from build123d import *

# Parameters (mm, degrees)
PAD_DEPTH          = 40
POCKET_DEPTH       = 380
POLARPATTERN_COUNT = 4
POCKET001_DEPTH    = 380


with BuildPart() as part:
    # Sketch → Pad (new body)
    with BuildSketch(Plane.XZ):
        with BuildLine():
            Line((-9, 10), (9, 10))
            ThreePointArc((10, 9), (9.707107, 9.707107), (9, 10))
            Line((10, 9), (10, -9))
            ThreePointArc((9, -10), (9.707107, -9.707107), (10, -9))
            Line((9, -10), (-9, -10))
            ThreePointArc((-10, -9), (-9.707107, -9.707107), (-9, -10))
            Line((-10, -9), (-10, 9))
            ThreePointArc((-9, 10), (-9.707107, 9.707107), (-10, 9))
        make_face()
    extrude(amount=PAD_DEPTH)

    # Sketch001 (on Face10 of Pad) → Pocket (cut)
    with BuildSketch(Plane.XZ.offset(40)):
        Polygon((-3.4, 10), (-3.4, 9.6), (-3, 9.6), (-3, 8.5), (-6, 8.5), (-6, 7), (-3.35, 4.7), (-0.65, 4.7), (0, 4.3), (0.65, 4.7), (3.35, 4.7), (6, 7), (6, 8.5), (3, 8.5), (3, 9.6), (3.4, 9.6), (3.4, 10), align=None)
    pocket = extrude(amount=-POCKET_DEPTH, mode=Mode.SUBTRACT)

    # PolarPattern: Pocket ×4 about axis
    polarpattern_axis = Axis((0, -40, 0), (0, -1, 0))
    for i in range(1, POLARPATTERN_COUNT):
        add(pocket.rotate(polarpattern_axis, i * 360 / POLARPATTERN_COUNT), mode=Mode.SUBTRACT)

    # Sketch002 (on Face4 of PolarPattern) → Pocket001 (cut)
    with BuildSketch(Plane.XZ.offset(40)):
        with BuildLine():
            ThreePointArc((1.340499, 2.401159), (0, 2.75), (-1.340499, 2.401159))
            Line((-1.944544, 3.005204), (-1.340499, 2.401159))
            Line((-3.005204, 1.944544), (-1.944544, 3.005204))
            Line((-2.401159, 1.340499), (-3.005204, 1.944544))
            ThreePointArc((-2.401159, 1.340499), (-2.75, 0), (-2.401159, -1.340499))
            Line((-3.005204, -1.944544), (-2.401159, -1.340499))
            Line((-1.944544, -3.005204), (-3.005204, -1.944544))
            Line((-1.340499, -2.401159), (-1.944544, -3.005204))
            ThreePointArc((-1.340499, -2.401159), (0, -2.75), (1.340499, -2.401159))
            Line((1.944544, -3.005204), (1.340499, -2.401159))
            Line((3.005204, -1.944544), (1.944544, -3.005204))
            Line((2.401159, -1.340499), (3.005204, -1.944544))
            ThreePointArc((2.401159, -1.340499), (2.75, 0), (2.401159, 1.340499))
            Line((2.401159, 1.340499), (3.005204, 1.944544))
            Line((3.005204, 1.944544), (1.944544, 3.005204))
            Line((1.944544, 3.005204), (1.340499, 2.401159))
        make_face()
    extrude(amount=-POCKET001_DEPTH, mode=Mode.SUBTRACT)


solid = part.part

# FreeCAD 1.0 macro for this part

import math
import FreeCAD as App
import Part
import Sketcher

V = App.Vector


def add_polygon(sketch, points):
    """Adds a closed chain of lines whose ends are joined by coincident constraints."""
    first, n = sketch.GeometryCount, len(points)
    for a, b in zip(points, points[1:] + points[:1]):
        sketch.addGeometry(Part.LineSegment(App.Vector(*a, 0), App.Vector(*b, 0)), False)
    for i in range(n):
        sketch.addConstraint(Sketcher.Constraint("Coincident", first + i, 2, first + (i + 1) % n, 1))

doc = App.newDocument("Part")
params = doc.addObject("Spreadsheet::Sheet", "Params")
for row, (alias, value) in enumerate([
    ("sketch1_radius", "0.999999 mm"),
    ("sketch1_width", "18 mm"),
    ("pad1_length", "40 mm"),
    ("sketch2_width", "3 mm"),
    ("sketch2_width2", "0.4 mm"),
    ("sketch2_width3", "2.7 mm"),
    ("sketch2_width4", "6.8 mm"),
    ("sketch2_height", "1.1 mm"),
    ("pocket1_length", "380 mm"),
    ("sketch3_length", "1.5 mm"),
    ("pocket2_length", "380 mm"),
], start=1):
    params.set(f"A{row}", alias)
    params.set(f"B{row}", "=" + value)
    params.setAlias(f"B{row}", alias)

body = doc.addObject("PartDesign::Body", "Body")

sketch1 = body.newObject("Sketcher::SketchObject", "Sketch")
sketch1.AttachmentSupport = (doc.getObject("XZ_Plane"), [""])
sketch1.MapMode = "FlatFace"
sketch1.addGeometry(Part.LineSegment(V(9, 10, 0), V(-9, 10, 0)), False)
sketch1.addGeometry(Part.ArcOfCircle(Part.Circle(V(-9, 9, 0), V(0, 0, 1), 1), math.radians(90), math.radians(180)), False)
sketch1.addGeometry(Part.LineSegment(V(-10, 9, 0), V(-10, -9, 0)), False)
sketch1.addGeometry(Part.ArcOfCircle(Part.Circle(V(-9, -9, 0), V(0, 0, 1), 1), math.radians(180), math.radians(270)), False)
sketch1.addGeometry(Part.LineSegment(V(-9, -10, 0), V(9, -10, 0)), False)
sketch1.addGeometry(Part.ArcOfCircle(Part.Circle(V(9, -9, 0), V(0, 0, 1), 1), math.radians(-90), math.radians(0)), False)
sketch1.addGeometry(Part.LineSegment(V(10, -9, 0), V(10, 9, 0)), False)
sketch1.addGeometry(Part.ArcOfCircle(Part.Circle(V(9, 9, 0), V(0, 0, 1), 1), math.radians(0), math.radians(90)), False)
sketch1.addConstraint(Sketcher.Constraint("Tangent", 0, 2, 1, 1))
sketch1.addConstraint(Sketcher.Constraint("Tangent", 1, 2, 2, 1))
sketch1.addConstraint(Sketcher.Constraint("Tangent", 2, 2, 3, 1))
sketch1.addConstraint(Sketcher.Constraint("Tangent", 3, 2, 4, 1))
sketch1.addConstraint(Sketcher.Constraint("Tangent", 4, 2, 5, 1))
sketch1.addConstraint(Sketcher.Constraint("Tangent", 5, 2, 6, 1))
sketch1.addConstraint(Sketcher.Constraint("Tangent", 6, 2, 7, 1))
sketch1.addConstraint(Sketcher.Constraint("Tangent", 7, 2, 0, 1))
sketch1.addConstraint(Sketcher.Constraint("Horizontal", 0))
sketch1.addConstraint(Sketcher.Constraint("Vertical", 2))
sketch1.addConstraint(Sketcher.Constraint("Horizontal", 4))
sketch1.addConstraint(Sketcher.Constraint("Vertical", 6))
sketch1.addConstraint(Sketcher.Constraint("Equal", 1, 3))
sketch1.addConstraint(Sketcher.Constraint("Equal", 3, 5))
sketch1.addConstraint(Sketcher.Constraint("Equal", 5, 7))
sketch1.addConstraint(Sketcher.Constraint("Symmetric", 1, 3, 5, 3, -1, 1))
sketch1.addConstraint(Sketcher.Constraint("Equal", 4, 2))
sketch1.addConstraint(Sketcher.Constraint("Radius", 1, 0.999999))
sketch1.addConstraint(Sketcher.Constraint("DistanceX", 0, 2, 0, 1, 18.0))
sketch1.setExpression("Constraints[17]", "Params.sketch1_radius")
sketch1.setExpression("Constraints[18]", "Params.sketch1_width")
pad1 = body.newObject("PartDesign::Pad", "Pad")
pad1.Profile = sketch1
pad1.setExpression("Length", "Params.pad1_length")

sketch2 = body.newObject("Sketcher::SketchObject", "Sketch001")
sketch2.AttachmentSupport = (doc.getObject("XZ_Plane"), [""])
sketch2.MapMode = "FlatFace"
sketch2.AttachmentOffset = App.Placement(V(0, 0, 40), App.Rotation())
add_polygon(sketch2, [(-3.4, 10), (-3.4, 9.6), (-3, 9.6), (-3, 8.5), (-6, 8.5), (-6, 7), (-3.35, 4.7), (-0.65, 4.7), (0, 4.3), (0.65, 4.7), (3.35, 4.7), (6, 7), (6, 8.5), (3, 8.5), (3, 9.6), (3.4, 9.6), (3.4, 10)])
sketch2.addConstraint(Sketcher.Constraint("Vertical", 0))
sketch2.addConstraint(Sketcher.Constraint("Horizontal", 1))
sketch2.addConstraint(Sketcher.Constraint("Vertical", 2))
sketch2.addConstraint(Sketcher.Constraint("Horizontal", 3))
sketch2.addConstraint(Sketcher.Constraint("Vertical", 4))
sketch2.addConstraint(Sketcher.Constraint("Horizontal", 6))
sketch2.addConstraint(Sketcher.Constraint("Horizontal", 9))
sketch2.addConstraint(Sketcher.Constraint("Vertical", 11))
sketch2.addConstraint(Sketcher.Constraint("Horizontal", 12))
sketch2.addConstraint(Sketcher.Constraint("Vertical", 13))
sketch2.addConstraint(Sketcher.Constraint("Horizontal", 14))
sketch2.addConstraint(Sketcher.Constraint("Vertical", 15))
sketch2.addConstraint(Sketcher.Constraint("Horizontal", 16))
sketch2.addConstraint(Sketcher.Constraint("Symmetric", 6, 2, 8, 2, -2))
sketch2.addConstraint(Sketcher.Constraint("Symmetric", 4, 2, 10, 2, -2))
sketch2.addConstraint(Sketcher.Constraint("Symmetric", 2, 2, 12, 2, -2))
sketch2.addConstraint(Sketcher.Constraint("Symmetric", 0, 2, 14, 2, -2))
sketch2.addConstraint(Sketcher.Constraint("PointOnObject", 7, 2, -2))
sketch2.addConstraint(Sketcher.Constraint("Equal", 6, 9))
sketch2.addConstraint(Sketcher.Constraint("Equal", 14, 0))
sketch2.addConstraint(Sketcher.Constraint("DistanceX", 3, 2, 3, 1, 3.0))
sketch2.addConstraint(Sketcher.Constraint("DistanceX", 1, 1, 1, 2, 0.4))
sketch2.addConstraint(Sketcher.Constraint("DistanceX", 6, 1, 6, 2, 2.7))
sketch2.addConstraint(Sketcher.Constraint("DistanceX", 16, 2, 16, 1, 6.8))
sketch2.addConstraint(Sketcher.Constraint("DistanceY", 2, 2, 2, 1, 1.1))
sketch2.addConstraint(Sketcher.Constraint("DistanceY", 4, 2, 4, 1, 1.5))
sketch2.addConstraint(Sketcher.Constraint("DistanceY", -1, 1, 4, 2, 7.0))
sketch2.addConstraint(Sketcher.Constraint("DistanceX", 5, 2, 8, 2, 4.0))
sketch2.addConstraint(Sketcher.Constraint("DistanceY", -1, 1, 5, 2, 4.7))
sketch2.addConstraint(Sketcher.Constraint("DistanceY", -1, 1, 7, 2, 4.3))
sketch2.setExpression("Constraints[37]", "Params.sketch2_width")
sketch2.setExpression("Constraints[38]", "Params.sketch2_width2")
sketch2.setExpression("Constraints[39]", "Params.sketch2_width3")
sketch2.setExpression("Constraints[40]", "Params.sketch2_width4")
sketch2.setExpression("Constraints[41]", "Params.sketch2_height")
pocket1 = body.newObject("PartDesign::Pocket", "Pocket")
pocket1.Profile = sketch2
pocket1.setExpression("Length", "Params.pocket1_length")
doc.recompute()

polarpattern = body.newObject("PartDesign::PolarPattern", "PolarPattern")
polarpattern.Originals = [pocket1]
polarpattern.Axis = (doc.getObject("Y_Axis"), [""])
polarpattern.Angle = 360
polarpattern.Occurrences = 4
body.Tip = polarpattern

sketch3 = body.newObject("Sketcher::SketchObject", "Sketch002")
sketch3.AttachmentSupport = (doc.getObject("XZ_Plane"), [""])
sketch3.MapMode = "FlatFace"
sketch3.AttachmentOffset = App.Placement(V(0, 0, 40), App.Rotation())
sketch3.addGeometry(Part.ArcOfCircle(Part.Circle(V(0, 0, 0), V(0, 0, 1), 2.8), math.radians(61), math.radians(119)), False)
sketch3.addGeometry(Part.LineSegment(V(-1.3, 2.4, 0), V(-1.9, 3, 0)), False)
sketch3.addGeometry(Part.LineSegment(V(-1.9, 3, 0), V(-3, 1.9, 0)), False)
sketch3.addGeometry(Part.LineSegment(V(-3, 1.9, 0), V(-2.4, 1.3, 0)), False)
sketch3.addGeometry(Part.ArcOfCircle(Part.Circle(V(0, 0, 0), V(0, 0, 1), 2.8), math.radians(151), math.radians(209)), False)
sketch3.addGeometry(Part.LineSegment(V(-2.4, -1.3, 0), V(-3, -1.9, 0)), False)
sketch3.addGeometry(Part.LineSegment(V(-3, -1.9, 0), V(-1.9, -3, 0)), False)
sketch3.addGeometry(Part.LineSegment(V(-1.9, -3, 0), V(-1.3, -2.4, 0)), False)
sketch3.addGeometry(Part.ArcOfCircle(Part.Circle(V(0, 0, 0), V(0, 0, 1), 2.8), math.radians(-119), math.radians(-61)), False)
sketch3.addGeometry(Part.LineSegment(V(1.3, -2.4, 0), V(1.9, -3, 0)), False)
sketch3.addGeometry(Part.LineSegment(V(1.9, -3, 0), V(3, -1.9, 0)), False)
sketch3.addGeometry(Part.LineSegment(V(3, -1.9, 0), V(2.4, -1.3, 0)), False)
sketch3.addGeometry(Part.ArcOfCircle(Part.Circle(V(0, 0, 0), V(0, 0, 1), 2.8), math.radians(-29), math.radians(29)), False)
sketch3.addGeometry(Part.LineSegment(V(2.4, 1.3, 0), V(3, 1.9, 0)), False)
sketch3.addGeometry(Part.LineSegment(V(3, 1.9, 0), V(1.9, 3, 0)), False)
sketch3.addGeometry(Part.LineSegment(V(1.9, 3, 0), V(1.3, 2.4, 0)), False)
sketch3.addConstraint(Sketcher.Constraint("Coincident", 0, 2, 1, 1))
sketch3.addConstraint(Sketcher.Constraint("Coincident", 1, 2, 2, 1))
sketch3.addConstraint(Sketcher.Constraint("Coincident", 2, 2, 3, 1))
sketch3.addConstraint(Sketcher.Constraint("Coincident", 3, 2, 4, 1))
sketch3.addConstraint(Sketcher.Constraint("Coincident", 4, 2, 5, 1))
sketch3.addConstraint(Sketcher.Constraint("Coincident", 5, 2, 6, 1))
sketch3.addConstraint(Sketcher.Constraint("Coincident", 6, 2, 7, 1))
sketch3.addConstraint(Sketcher.Constraint("Coincident", 7, 2, 8, 1))
sketch3.addConstraint(Sketcher.Constraint("Coincident", 8, 2, 9, 1))
sketch3.addConstraint(Sketcher.Constraint("Coincident", 9, 2, 10, 1))
sketch3.addConstraint(Sketcher.Constraint("Coincident", 10, 2, 11, 1))
sketch3.addConstraint(Sketcher.Constraint("Coincident", 11, 2, 12, 1))
sketch3.addConstraint(Sketcher.Constraint("Coincident", 12, 2, 13, 1))
sketch3.addConstraint(Sketcher.Constraint("Coincident", 13, 2, 14, 1))
sketch3.addConstraint(Sketcher.Constraint("Coincident", 14, 2, 15, 1))
sketch3.addConstraint(Sketcher.Constraint("Coincident", 15, 2, 0, 1))
sketch3.addConstraint(Sketcher.Constraint("Coincident", 0, 3, -1, 1))
sketch3.addConstraint(Sketcher.Constraint("Coincident", 4, 3, -1, 1))
sketch3.addConstraint(Sketcher.Constraint("Coincident", 8, 3, -1, 1))
sketch3.addConstraint(Sketcher.Constraint("Coincident", 12, 3, -1, 1))
sketch3.addConstraint(Sketcher.Constraint("Equal", 0, 4))
sketch3.addConstraint(Sketcher.Constraint("Equal", 4, 8))
sketch3.addConstraint(Sketcher.Constraint("Equal", 8, 12))
sketch3.addConstraint(Sketcher.Constraint("Symmetric", 1, 2, 9, 2, -1, 1))
sketch3.addConstraint(Sketcher.Constraint("Symmetric", 2, 2, 10, 2, -1, 1))
sketch3.addConstraint(Sketcher.Constraint("Symmetric", 5, 2, 13, 2, -1, 1))
sketch3.addConstraint(Sketcher.Constraint("Symmetric", 6, 2, 14, 2, -1, 1))
sketch3.addConstraint(Sketcher.Constraint("Symmetric", 6, 2, 9, 2, -2))
sketch3.addConstraint(Sketcher.Constraint("Symmetric", 5, 2, 10, 2, -2))
sketch3.addConstraint(Sketcher.Constraint("Perpendicular", 1, 2))
sketch3.addConstraint(Sketcher.Constraint("Perpendicular", 2, 3))
sketch3.addConstraint(Sketcher.Constraint("Perpendicular", 3, 5))
sketch3.addConstraint(Sketcher.Constraint("Perpendicular", 5, 6))
sketch3.addConstraint(Sketcher.Constraint("Perpendicular", 6, 7))
sketch3.addConstraint(Sketcher.Constraint("Perpendicular", 7, 9))
sketch3.addConstraint(Sketcher.Constraint("Perpendicular", 10, 11))
sketch3.addConstraint(Sketcher.Constraint("Perpendicular", 11, 13))
sketch3.addConstraint(Sketcher.Constraint("Perpendicular", 14, 15))
sketch3.addConstraint(Sketcher.Constraint("Equal", 1, 3))
sketch3.addConstraint(Sketcher.Constraint("Distance", 2, 1.5))
sketch3.addConstraint(Sketcher.Constraint("Radius", 0, 2.750003))
sketch3.addConstraint(Sketcher.Constraint("DistanceY", 8, 3, 1, 2, 3.005201))
sketch3.setExpression("Constraints[39]", "Params.sketch3_length")
pocket2 = body.newObject("PartDesign::Pocket", "Pocket001")
pocket2.Profile = sketch3
pocket2.setExpression("Length", "Params.pocket2_length")

doc.recompute()
